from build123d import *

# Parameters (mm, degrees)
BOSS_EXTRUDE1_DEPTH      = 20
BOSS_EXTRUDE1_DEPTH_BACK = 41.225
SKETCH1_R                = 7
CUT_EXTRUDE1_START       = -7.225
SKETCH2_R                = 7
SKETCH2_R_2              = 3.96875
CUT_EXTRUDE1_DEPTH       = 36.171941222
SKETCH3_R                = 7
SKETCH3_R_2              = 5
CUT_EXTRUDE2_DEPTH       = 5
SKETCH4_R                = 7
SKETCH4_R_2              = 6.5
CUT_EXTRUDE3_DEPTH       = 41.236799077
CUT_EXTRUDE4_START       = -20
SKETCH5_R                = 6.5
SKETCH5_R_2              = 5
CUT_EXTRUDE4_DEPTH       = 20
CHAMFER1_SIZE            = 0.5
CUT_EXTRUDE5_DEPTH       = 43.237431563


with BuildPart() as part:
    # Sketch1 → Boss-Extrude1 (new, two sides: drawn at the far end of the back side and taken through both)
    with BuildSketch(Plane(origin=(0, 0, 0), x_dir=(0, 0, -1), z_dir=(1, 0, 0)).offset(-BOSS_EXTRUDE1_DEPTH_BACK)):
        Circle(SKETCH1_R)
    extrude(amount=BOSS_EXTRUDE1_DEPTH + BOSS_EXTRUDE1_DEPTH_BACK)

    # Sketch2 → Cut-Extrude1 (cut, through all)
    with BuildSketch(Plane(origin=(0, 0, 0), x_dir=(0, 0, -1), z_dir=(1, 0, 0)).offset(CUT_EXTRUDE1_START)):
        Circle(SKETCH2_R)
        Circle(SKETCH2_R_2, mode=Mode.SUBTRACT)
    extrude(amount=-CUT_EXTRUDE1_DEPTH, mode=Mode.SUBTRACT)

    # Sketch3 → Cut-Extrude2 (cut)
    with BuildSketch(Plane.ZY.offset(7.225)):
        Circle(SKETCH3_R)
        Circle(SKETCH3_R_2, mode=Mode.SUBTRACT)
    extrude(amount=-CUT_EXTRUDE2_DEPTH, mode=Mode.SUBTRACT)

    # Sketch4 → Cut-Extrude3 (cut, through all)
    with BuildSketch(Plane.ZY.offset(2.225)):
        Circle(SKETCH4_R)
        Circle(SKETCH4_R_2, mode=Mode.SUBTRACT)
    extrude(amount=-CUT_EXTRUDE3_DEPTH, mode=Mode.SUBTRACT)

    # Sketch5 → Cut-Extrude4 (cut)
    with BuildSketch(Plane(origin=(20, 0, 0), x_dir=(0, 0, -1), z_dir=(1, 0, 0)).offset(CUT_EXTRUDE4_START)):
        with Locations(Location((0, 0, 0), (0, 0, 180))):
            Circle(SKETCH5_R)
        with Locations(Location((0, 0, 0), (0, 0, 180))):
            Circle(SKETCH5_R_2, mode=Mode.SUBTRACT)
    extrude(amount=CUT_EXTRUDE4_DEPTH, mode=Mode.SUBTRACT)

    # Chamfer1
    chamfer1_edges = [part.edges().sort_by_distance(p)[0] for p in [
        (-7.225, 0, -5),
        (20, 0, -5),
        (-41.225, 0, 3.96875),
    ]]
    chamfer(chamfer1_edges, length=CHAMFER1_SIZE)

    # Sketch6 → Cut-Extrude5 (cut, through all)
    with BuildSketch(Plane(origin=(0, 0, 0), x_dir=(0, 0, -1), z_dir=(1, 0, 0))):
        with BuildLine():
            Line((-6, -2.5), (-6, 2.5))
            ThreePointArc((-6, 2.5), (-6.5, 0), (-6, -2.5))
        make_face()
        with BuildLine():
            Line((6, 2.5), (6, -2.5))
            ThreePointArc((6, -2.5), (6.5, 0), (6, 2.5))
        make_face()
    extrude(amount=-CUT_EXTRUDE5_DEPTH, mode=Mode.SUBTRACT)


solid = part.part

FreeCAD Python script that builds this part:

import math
import FreeCAD as App
import Part
import Sketcher
Q = App.Units.Quantity


def edges_at(feature, points):
    """Names of the edges that pass closest to the given points."""
    edges = feature.Shape.Edges
    near = lambda p: min(range(len(edges)), key=lambda i: edges[i].distToShape(Part.Vertex(*p))[0])
    return sorted({f"Edge{near(p) + 1}" for p in points})

doc = App.newDocument("Part")
body = doc.addObject("PartDesign::Body", "Body")

sketch1 = body.newObject("Sketcher::SketchObject", "Sketch")
sketch1.AttachmentSupport = (doc.getObject("YZ_Plane"), [""])
sketch1.MapMode = "FlatFace"
sketch1.addGeometry(Part.Circle(App.Vector(0, 0, 0), App.Vector(0, 0, 1), 7), False)
sketch1.addConstraint(Sketcher.Constraint("Coincident", 0, 3, -1, 1))
sketch1.addConstraint(Sketcher.Constraint("Diameter", 0, Q("14 mm")))
pad1 = body.newObject("PartDesign::Pad", "Pad")
pad1.Profile = sketch1
pad1.Type = "TwoLengths"
pad1.Length = 20
pad1.Length2 = 41.225

sketch2 = body.newObject("Sketcher::SketchObject", "Sketch001")
sketch2.AttachmentSupport = (doc.getObject("YZ_Plane"), [""])
sketch2.MapMode = "FlatFace"
sketch2.AttachmentOffset = App.Placement(App.Vector(0, 0, -7.225), App.Rotation())
sketch2.addGeometry(Part.Circle(App.Vector(0, 0, 0), App.Vector(0, 0, 1), 7), False)
sketch2.addGeometry(Part.Circle(App.Vector(0, 0, 0), App.Vector(0, 0, 1), 4), False)
sketch2.addConstraint(Sketcher.Constraint("Coincident", 0, 3, -1, 1))
sketch2.addConstraint(Sketcher.Constraint("Coincident", 1, 3, -1, 1))
sketch2.addConstraint(Sketcher.Constraint("Diameter", 0, Q("14 mm")))
sketch2.addConstraint(Sketcher.Constraint("Diameter", 1, Q("7.9375 mm")))
pocket1 = body.newObject("PartDesign::Pocket", "Pocket")
pocket1.Profile = sketch2
pocket1.Type = "ThroughAll"

sketch3 = body.newObject("Sketcher::SketchObject", "Sketch002")
sketch3.AttachmentSupport = (doc.getObject("YZ_Plane"), [""])
sketch3.MapMode = "FlatFace"
sketch3.AttachmentOffset = App.Placement(App.Vector(0, 0, -7.225), App.Rotation())
sketch3.addGeometry(Part.Circle(App.Vector(0, 0, 0), App.Vector(0, 0, 1), 7), False)
sketch3.addGeometry(Part.Circle(App.Vector(0, 0, 0), App.Vector(0, 0, 1), 5), False)
sketch3.addConstraint(Sketcher.Constraint("Coincident", 0, 3, -1, 1))
sketch3.addConstraint(Sketcher.Constraint("Coincident", 1, 3, -1, 1))
sketch3.addConstraint(Sketcher.Constraint("Diameter", 0, Q("14 mm")))
sketch3.addConstraint(Sketcher.Constraint("Diameter", 1, Q("10 mm")))
pocket2 = body.newObject("PartDesign::Pocket", "Pocket001")
pocket2.Profile = sketch3
pocket2.Length = 5
pocket2.Reversed = True

sketch4 = body.newObject("Sketcher::SketchObject", "Sketch003")
sketch4.AttachmentSupport = (doc.getObject("YZ_Plane"), [""])
sketch4.MapMode = "FlatFace"
sketch4.AttachmentOffset = App.Placement(App.Vector(0, 0, -2.225), App.Rotation())
sketch4.addGeometry(Part.Circle(App.Vector(0, 0, 0), App.Vector(0, 0, 1), 7), False)
sketch4.addGeometry(Part.Circle(App.Vector(0, 0, 0), App.Vector(0, 0, 1), 6), False)
sketch4.addConstraint(Sketcher.Constraint("Coincident", 0, 3, -1, 1))
sketch4.addConstraint(Sketcher.Constraint("Coincident", 1, 3, -1, 1))
sketch4.addConstraint(Sketcher.Constraint("Diameter", 0, Q("14 mm")))
sketch4.addConstraint(Sketcher.Constraint("Diameter", 1, Q("13 mm")))
pocket3 = body.newObject("PartDesign::Pocket", "Pocket002")
pocket3.Profile = sketch4
pocket3.Type = "ThroughAll"
pocket3.Reversed = True

sketch5 = body.newObject("Sketcher::SketchObject", "Sketch004")
sketch5.AttachmentSupport = (doc.getObject("YZ_Plane"), [""])
sketch5.MapMode = "FlatFace"
sketch5.addGeometry(Part.Circle(App.Vector(0, 0, 0), App.Vector(0, 0, 1), 6), False)
sketch5.addGeometry(Part.Circle(App.Vector(0, 0, 0), App.Vector(0, 0, 1), 5), False)
sketch5.addConstraint(Sketcher.Constraint("Coincident", 0, 3, -1, 1))
sketch5.addConstraint(Sketcher.Constraint("Coincident", 1, 3, -1, 1))
sketch5.addConstraint(Sketcher.Constraint("Diameter", 0, Q("13 mm")))
sketch5.addConstraint(Sketcher.Constraint("Diameter", 1, Q("10 mm")))
pocket4 = body.newObject("PartDesign::Pocket", "Pocket003")
pocket4.Profile = sketch5
pocket4.Length = 20
pocket4.Reversed = True
doc.recompute()

chamfer = body.newObject("PartDesign::Chamfer", "Chamfer")
chamfer.Base = (pocket4, edges_at(pocket4, [(-7.225, 0, -5), (20, 0, -5), (-41.225, 0, 3.969)]))
chamfer.Size = 0.5

sketch6 = body.newObject("Sketcher::SketchObject", "Sketch005")
sketch6.AttachmentSupport = (doc.getObject("YZ_Plane"), [""])
sketch6.MapMode = "FlatFace"
sketch6.addGeometry(Part.LineSegment(App.Vector(-2, 6, 0), App.Vector(2, 6, 0)), False)
sketch6.addGeometry(Part.ArcOfCircle(Part.Circle(App.Vector(0, 0, 0), App.Vector(0, 0, 1), 6), math.radians(67), math.radians(113)), False)
sketch6.addGeometry(Part.LineSegment(App.Vector(2, -6, 0), App.Vector(-2, -6, 0)), False)
sketch6.addGeometry(Part.ArcOfCircle(Part.Circle(App.Vector(0, 0, 0), App.Vector(0, 0, 1), 6), math.radians(-113), math.radians(-67)), False)
sketch6.addConstraint(Sketcher.Constraint("Coincident", 0, 1, 1, 2))
sketch6.addConstraint(Sketcher.Constraint("Coincident", 1, 1, 0, 2))
sketch6.addConstraint(Sketcher.Constraint("Coincident", 2, 1, 3, 2))
sketch6.addConstraint(Sketcher.Constraint("Coincident", 3, 1, 2, 2))
sketch6.addConstraint(Sketcher.Constraint("Horizontal", 0))
sketch6.addConstraint(Sketcher.Constraint("Horizontal", 2))
sketch6.addConstraint(Sketcher.Constraint("Coincident", 1, 3, -1, 1))
sketch6.addConstraint(Sketcher.Constraint("Coincident", 3, 3, -1, 1))
sketch6.addConstraint(Sketcher.Constraint("Equal", 1, 3))
sketch6.addConstraint(Sketcher.Constraint("Vertical", 1, 1, 2, 1))
sketch6.addConstraint(Sketcher.Constraint("Radius", 1, Q("6.5 mm")))
sketch6.addConstraint(Sketcher.Constraint("DistanceX", 0, 1, 0, 2, Q("5 mm")))
pocket5 = body.newObject("PartDesign::Pocket", "Pocket004")
pocket5.Profile = sketch6
pocket5.Type = "ThroughAll"

doc.recompute()
